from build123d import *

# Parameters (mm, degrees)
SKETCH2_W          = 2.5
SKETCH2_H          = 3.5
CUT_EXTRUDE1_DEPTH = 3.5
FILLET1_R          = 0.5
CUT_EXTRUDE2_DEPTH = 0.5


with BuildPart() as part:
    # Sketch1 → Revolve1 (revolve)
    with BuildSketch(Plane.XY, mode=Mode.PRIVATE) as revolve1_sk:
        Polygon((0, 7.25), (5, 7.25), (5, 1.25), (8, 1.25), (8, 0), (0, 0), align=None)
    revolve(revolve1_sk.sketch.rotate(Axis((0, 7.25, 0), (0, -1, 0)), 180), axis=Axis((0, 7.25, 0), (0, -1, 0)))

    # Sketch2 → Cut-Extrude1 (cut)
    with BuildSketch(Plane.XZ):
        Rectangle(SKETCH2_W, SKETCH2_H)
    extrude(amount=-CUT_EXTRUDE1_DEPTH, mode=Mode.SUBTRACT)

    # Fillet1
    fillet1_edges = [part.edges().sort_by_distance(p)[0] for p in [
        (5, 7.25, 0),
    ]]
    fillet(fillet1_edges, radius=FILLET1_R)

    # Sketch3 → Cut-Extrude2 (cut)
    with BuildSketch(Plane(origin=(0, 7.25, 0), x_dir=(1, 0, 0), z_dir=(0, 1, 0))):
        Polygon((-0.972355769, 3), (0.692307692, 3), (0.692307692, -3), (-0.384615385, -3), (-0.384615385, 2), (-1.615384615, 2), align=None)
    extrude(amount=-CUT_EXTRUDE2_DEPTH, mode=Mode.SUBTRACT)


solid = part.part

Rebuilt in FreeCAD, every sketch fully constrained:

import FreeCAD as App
import Part
import Sketcher

V = App.Vector
Q = App.Units.Quantity


def edges_at(feature, points):
    """Names of the edges that pass closest to the given points."""
    edges = feature.Shape.Edges
    near = lambda p: min(range(len(edges)), key=lambda i: edges[i].distToShape(Part.Vertex(*p))[0])
    return sorted({f"Edge{near(p) + 1}" for p in points})

doc = App.newDocument("Part")
body = doc.addObject("PartDesign::Body", "Body")

sketch1 = body.newObject("Sketcher::SketchObject", "Sketch")
sketch1.AttachmentSupport = (doc.getObject("XY_Plane"), [""])
sketch1.MapMode = "FlatFace"
sketch1.addGeometry(Part.LineSegment(V(5, 7.2, 0), V(0, 7.2, 0)), False)
sketch1.addGeometry(Part.LineSegment(V(0, 7.2, 0), V(0, 0, 0)), False)
sketch1.addGeometry(Part.LineSegment(V(0, 0, 0), V(8, 0, 0)), False)
sketch1.addGeometry(Part.LineSegment(V(8, 0, 0), V(8, 1.2, 0)), False)
sketch1.addGeometry(Part.LineSegment(V(8, 1.2, 0), V(5, 1.2, 0)), False)
sketch1.addGeometry(Part.LineSegment(V(5, 1.2, 0), V(5, 7.2, 0)), False)
sketch1.addConstraint(Sketcher.Constraint("Coincident", 0, 2, 1, 1))
sketch1.addConstraint(Sketcher.Constraint("Coincident", 1, 2, 2, 1))
sketch1.addConstraint(Sketcher.Constraint("Coincident", 2, 2, 3, 1))
sketch1.addConstraint(Sketcher.Constraint("Coincident", 3, 2, 4, 1))
sketch1.addConstraint(Sketcher.Constraint("Coincident", 4, 2, 5, 1))
sketch1.addConstraint(Sketcher.Constraint("Coincident", 5, 2, 0, 1))
sketch1.addConstraint(Sketcher.Constraint("Horizontal", 0))
sketch1.addConstraint(Sketcher.Constraint("Vertical", 1))
sketch1.addConstraint(Sketcher.Constraint("Horizontal", 2))
sketch1.addConstraint(Sketcher.Constraint("Vertical", 3))
sketch1.addConstraint(Sketcher.Constraint("Horizontal", 4))
sketch1.addConstraint(Sketcher.Constraint("Vertical", 5))
sketch1.addConstraint(Sketcher.Constraint("Coincident", 1, 2, -1, 1))
sketch1.addConstraint(Sketcher.Constraint("DistanceX", 0, 2, 0, 1, Q("5 mm")))
sketch1.addConstraint(Sketcher.Constraint("DistanceX", 2, 1, 2, 2, Q("8 mm")))
sketch1.addConstraint(Sketcher.Constraint("DistanceY", 5, 1, 5, 2, Q("6 mm")))
sketch1.addConstraint(Sketcher.Constraint("DistanceY", 1, 2, 1, 1, Q("7.25 mm")))
revolution = body.newObject("PartDesign::Revolution", "Revolution")
revolution.Profile = sketch1
revolution.ReferenceAxis = (sketch1, ["V_Axis"])
revolution.Angle = 360

sketch2 = body.newObject("Sketcher::SketchObject", "Sketch001")
sketch2.AttachmentSupport = (doc.getObject("XZ_Plane"), [""])
sketch2.MapMode = "FlatFace"
sketch2.addGeometry(Part.LineSegment(V(-1.2, 1.8, 0), V(-1.2, -1.8, 0)), False)
sketch2.addGeometry(Part.LineSegment(V(-1.2, -1.8, 0), V(1.2, -1.8, 0)), False)
sketch2.addGeometry(Part.LineSegment(V(1.2, -1.8, 0), V(1.2, 1.8, 0)), False)
sketch2.addGeometry(Part.LineSegment(V(1.2, 1.8, 0), V(-1.2, 1.8, 0)), False)
sketch2.addConstraint(Sketcher.Constraint("Coincident", 0, 2, 1, 1))
sketch2.addConstraint(Sketcher.Constraint("Coincident", 1, 2, 2, 1))
sketch2.addConstraint(Sketcher.Constraint("Coincident", 2, 2, 3, 1))
sketch2.addConstraint(Sketcher.Constraint("Coincident", 3, 2, 0, 1))
sketch2.addConstraint(Sketcher.Constraint("Vertical", 0))
sketch2.addConstraint(Sketcher.Constraint("Horizontal", 1))
sketch2.addConstraint(Sketcher.Constraint("Vertical", 2))
sketch2.addConstraint(Sketcher.Constraint("Horizontal", 3))
sketch2.addConstraint(Sketcher.Constraint("Symmetric", 0, 2, 2, 2, -1, 1))
sketch2.addConstraint(Sketcher.Constraint("DistanceX", 1, 1, 1, 2, Q("2.5 mm")))
sketch2.addConstraint(Sketcher.Constraint("DistanceY", 0, 2, 0, 1, Q("3.5 mm")))
pocket1 = body.newObject("PartDesign::Pocket", "Pocket")
pocket1.Profile = sketch2
pocket1.Length = 3.5
doc.recompute()

fillet = body.newObject("PartDesign::Fillet", "Fillet")
fillet.Base = (pocket1, edges_at(pocket1, [(5, 7.25, 0)]))
fillet.Radius = 0.5

sketch3 = body.newObject("Sketcher::SketchObject", "Sketch002")
sketch3.AttachmentSupport = (doc.getObject("XZ_Plane"), [""])
sketch3.MapMode = "FlatFace"
sketch3.AttachmentOffset = App.Placement(V(0, 0, -7.25), App.Rotation())
sketch3.addGeometry(Part.LineSegment(V(0.7, -3, 0), V(-1, -3, 0)), False)
sketch3.addGeometry(Part.LineSegment(V(-1, -3, 0), V(-1.6, -2, 0)), False)
sketch3.addGeometry(Part.LineSegment(V(-1.6, -2, 0), V(-0.4, -2, 0)), False)
sketch3.addGeometry(Part.LineSegment(V(-0.4, -2, 0), V(-0.4, 3, 0)), False)
sketch3.addGeometry(Part.LineSegment(V(-0.4, 3, 0), V(0.7, 3, 0)), False)
sketch3.addGeometry(Part.LineSegment(V(0.7, 3, 0), V(0.7, -3, 0)), False)
sketch3.addConstraint(Sketcher.Constraint("Coincident", 0, 2, 1, 1))
sketch3.addConstraint(Sketcher.Constraint("Coincident", 1, 2, 2, 1))
sketch3.addConstraint(Sketcher.Constraint("Coincident", 2, 2, 3, 1))
sketch3.addConstraint(Sketcher.Constraint("Coincident", 3, 2, 4, 1))
sketch3.addConstraint(Sketcher.Constraint("Coincident", 4, 2, 5, 1))
sketch3.addConstraint(Sketcher.Constraint("Coincident", 5, 2, 0, 1))
sketch3.addConstraint(Sketcher.Constraint("Horizontal", 0))
sketch3.addConstraint(Sketcher.Constraint("Horizontal", 2))
sketch3.addConstraint(Sketcher.Constraint("Vertical", 3))
sketch3.addConstraint(Sketcher.Constraint("Horizontal", 4))
sketch3.addConstraint(Sketcher.Constraint("Vertical", 5))
sketch3.addConstraint(Sketcher.Constraint("DistanceY", 3, 1, 3, 2, Q("5 mm")))
sketch3.addConstraint(Sketcher.Constraint("DistanceY", 5, 2, 5, 1, Q("6 mm")))
sketch3.addConstraint(Sketcher.Constraint("DistanceY", 0, 2, -1, 1, Q("3 mm")))
sketch3.addConstraint(Sketcher.Constraint("Distance", 1, Q("1.188901 mm")))
sketch3.addConstraint(Sketcher.Constraint("DistanceX", 2, 1, 2, 2, Q("1.230769 mm")))
sketch3.addConstraint(Sketcher.Constraint("DistanceX", 0, 2, 0, 1, Q("1.664663 mm")))
sketch3.addConstraint(Sketcher.Constraint("DistanceX", 0, 2, -1, 1, Q("0.972356 mm")))
pocket2 = body.newObject("PartDesign::Pocket", "Pocket001")
pocket2.Profile = sketch3
pocket2.Length = 0.5
pocket2.Reversed = True

doc.recompute()
